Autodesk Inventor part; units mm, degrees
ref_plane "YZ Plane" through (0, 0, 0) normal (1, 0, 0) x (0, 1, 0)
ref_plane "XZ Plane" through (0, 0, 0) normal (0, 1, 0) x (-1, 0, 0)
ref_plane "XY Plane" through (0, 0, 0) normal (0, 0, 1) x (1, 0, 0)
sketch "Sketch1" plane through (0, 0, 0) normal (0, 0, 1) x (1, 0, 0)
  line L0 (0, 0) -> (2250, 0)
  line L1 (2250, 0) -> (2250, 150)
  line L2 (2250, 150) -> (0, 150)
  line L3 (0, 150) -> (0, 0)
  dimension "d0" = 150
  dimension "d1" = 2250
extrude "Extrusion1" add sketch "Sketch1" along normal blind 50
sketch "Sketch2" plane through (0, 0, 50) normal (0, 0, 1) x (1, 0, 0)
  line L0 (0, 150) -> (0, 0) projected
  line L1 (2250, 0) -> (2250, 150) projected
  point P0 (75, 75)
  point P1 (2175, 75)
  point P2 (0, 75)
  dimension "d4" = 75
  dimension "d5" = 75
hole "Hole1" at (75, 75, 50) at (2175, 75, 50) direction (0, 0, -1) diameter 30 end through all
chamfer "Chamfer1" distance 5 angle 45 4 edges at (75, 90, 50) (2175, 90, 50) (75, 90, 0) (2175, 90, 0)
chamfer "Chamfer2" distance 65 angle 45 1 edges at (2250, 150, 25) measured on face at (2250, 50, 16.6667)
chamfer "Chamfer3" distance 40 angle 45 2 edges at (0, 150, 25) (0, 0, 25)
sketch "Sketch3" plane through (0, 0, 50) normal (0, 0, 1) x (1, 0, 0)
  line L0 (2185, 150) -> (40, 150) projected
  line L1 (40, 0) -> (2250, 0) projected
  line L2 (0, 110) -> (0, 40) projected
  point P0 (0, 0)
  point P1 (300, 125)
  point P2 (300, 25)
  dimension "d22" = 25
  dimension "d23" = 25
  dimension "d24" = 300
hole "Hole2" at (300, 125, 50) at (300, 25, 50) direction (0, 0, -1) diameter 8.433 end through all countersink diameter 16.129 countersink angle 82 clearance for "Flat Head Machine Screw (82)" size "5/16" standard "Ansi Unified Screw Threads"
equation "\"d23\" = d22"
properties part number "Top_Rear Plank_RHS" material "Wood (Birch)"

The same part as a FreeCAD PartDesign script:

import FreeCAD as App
import Part
import Sketcher
from FreeCAD import Vector
Q = App.Units.Quantity


def edges_at(feature, points):
    """Names of the edges that pass closest to the given points."""
    edges = feature.Shape.Edges
    near = lambda p: min(range(len(edges)), key=lambda i: edges[i].distToShape(Part.Vertex(*p))[0])
    return sorted({f"Edge{near(p) + 1}" for p in points})

doc = App.newDocument("Part")
body = doc.addObject("PartDesign::Body", "Body")

# Sketch on XY plane
sketch1 = doc.addObject("Sketcher::SketchObject", "Sketch")
body.addObject(sketch1)
sketch1.AttachmentSupport = (doc.XY_Plane, [""])
sketch1.MapMode = "FlatFace"
sketch1.addGeometry(Part.LineSegment(Vector(0, 150, 0), Vector(0, 0, 0)), False)
sketch1.addGeometry(Part.LineSegment(Vector(0, 0, 0), Vector(2250, 0, 0)), False)
sketch1.addGeometry(Part.LineSegment(Vector(2250, 0, 0), Vector(2250, 150, 0)), False)
sketch1.addGeometry(Part.LineSegment(Vector(2250, 150, 0), Vector(0, 150, 0)), False)
sketch1.addConstraint(Sketcher.Constraint("Coincident", 0, 2, 1, 1))
sketch1.addConstraint(Sketcher.Constraint("Coincident", 1, 2, 2, 1))
sketch1.addConstraint(Sketcher.Constraint("Coincident", 2, 2, 3, 1))
sketch1.addConstraint(Sketcher.Constraint("Coincident", 3, 2, 0, 1))
sketch1.addConstraint(Sketcher.Constraint("Vertical", 0))
sketch1.addConstraint(Sketcher.Constraint("Horizontal", 1))
sketch1.addConstraint(Sketcher.Constraint("Vertical", 2))
sketch1.addConstraint(Sketcher.Constraint("Horizontal", 3))
sketch1.addConstraint(Sketcher.Constraint("Coincident", 0, 2, -1, 1))
sketch1.addConstraint(Sketcher.Constraint("DistanceX", 1, 1, 1, 2, Q("2250 mm")))
sketch1.addConstraint(Sketcher.Constraint("DistanceY", 0, 2, 0, 1, Q("150 mm")))
pad1 = doc.addObject("PartDesign::Pad", "Pad")
body.addObject(pad1)
pad1.Profile = sketch1
pad1.Length = 50

# Sketch on XY plane
sketch2 = doc.addObject("Sketcher::SketchObject", "Sketch001")
body.addObject(sketch2)
sketch2.AttachmentSupport = (doc.XY_Plane, [""])
sketch2.MapMode = "FlatFace"
sketch2.AttachmentOffset = App.Placement(Vector(0, 0, 50), App.Rotation())
sketch2.addGeometry(Part.Circle(Vector(75, 75, 0), Vector(0, 0, 1), 15), False)
sketch2.addGeometry(Part.Circle(Vector(2175, 75, 0), Vector(0, 0, 1), 15), False)
sketch2.addConstraint(Sketcher.Constraint("Equal", 0, 1))
sketch2.addConstraint(Sketcher.Constraint("Horizontal", 0, 3, 1, 3))
sketch2.addConstraint(Sketcher.Constraint("Diameter", 0, Q("30 mm")))
sketch2.addConstraint(Sketcher.Constraint("DistanceX", -1, 1, 0, 3, Q("75 mm")))
sketch2.addConstraint(Sketcher.Constraint("DistanceY", -1, 1, 0, 3, Q("75 mm")))
sketch2.addConstraint(Sketcher.Constraint("DistanceX", -1, 1, 1, 3, Q("2175 mm")))
doc.recompute()
hole = doc.addObject("PartDesign::Hole", "Hole")
body.addObject(hole)
hole.Profile = sketch2
hole.ThreadType = "None"
hole.Diameter = 30
hole.DepthType = "ThroughAll"
doc.recompute()

chamfer = doc.addObject("PartDesign::Chamfer", "Chamfer")
body.addObject(chamfer)
chamfer.Base = (hole, edges_at(hole, [
    (75, 90, 50),
    (2175, 90, 50),
    (75, 90, 0),
    (2175, 90, 0),
]))
chamfer.Size = 5
doc.recompute()

chamfer2 = doc.addObject("PartDesign::Chamfer", "Chamfer001")
body.addObject(chamfer2)
chamfer2.Base = (chamfer, edges_at(chamfer, [(2250, 150, 25)]))
chamfer2.Size = 65
doc.recompute()

chamfer3 = doc.addObject("PartDesign::Chamfer", "Chamfer002")
body.addObject(chamfer3)
chamfer3.Base = (chamfer2, edges_at(chamfer2, [(0, 150, 25), (0, 0, 25)]))
chamfer3.Size = 40

# Sketch on XY plane
sketch3 = doc.addObject("Sketcher::SketchObject", "Sketch002")
body.addObject(sketch3)
sketch3.AttachmentSupport = (doc.XY_Plane, [""])
sketch3.MapMode = "FlatFace"
sketch3.AttachmentOffset = App.Placement(Vector(0, 0, 50), App.Rotation())
sketch3.addGeometry(Part.Circle(Vector(300, 125, 0), Vector(0, 0, 1), 4.2), False)
sketch3.addGeometry(Part.Circle(Vector(300, 25, 0), Vector(0, 0, 1), 4.2), False)
sketch3.addConstraint(Sketcher.Constraint("Equal", 0, 1))
sketch3.addConstraint(Sketcher.Constraint("Vertical", 0, 3, 1, 3))
sketch3.addConstraint(Sketcher.Constraint("Diameter", 0, Q("8.433 mm")))
sketch3.addConstraint(Sketcher.Constraint("DistanceX", -1, 1, 0, 3, Q("300 mm")))
sketch3.addConstraint(Sketcher.Constraint("DistanceY", -1, 1, 0, 3, Q("125 mm")))
sketch3.addConstraint(Sketcher.Constraint("DistanceY", -1, 1, 1, 3, Q("25 mm")))
doc.recompute()
hole2 = doc.addObject("PartDesign::Hole", "Hole001")
body.addObject(hole2)
hole2.Profile = sketch3
hole2.ThreadType = "None"
hole2.Diameter = 8.433
hole2.DepthType = "ThroughAll"
hole2.HoleCutType = "Countersink"
hole2.HoleCutDiameter = 16.129
hole2.HoleCutCountersinkAngle = 82

doc.recompute()
